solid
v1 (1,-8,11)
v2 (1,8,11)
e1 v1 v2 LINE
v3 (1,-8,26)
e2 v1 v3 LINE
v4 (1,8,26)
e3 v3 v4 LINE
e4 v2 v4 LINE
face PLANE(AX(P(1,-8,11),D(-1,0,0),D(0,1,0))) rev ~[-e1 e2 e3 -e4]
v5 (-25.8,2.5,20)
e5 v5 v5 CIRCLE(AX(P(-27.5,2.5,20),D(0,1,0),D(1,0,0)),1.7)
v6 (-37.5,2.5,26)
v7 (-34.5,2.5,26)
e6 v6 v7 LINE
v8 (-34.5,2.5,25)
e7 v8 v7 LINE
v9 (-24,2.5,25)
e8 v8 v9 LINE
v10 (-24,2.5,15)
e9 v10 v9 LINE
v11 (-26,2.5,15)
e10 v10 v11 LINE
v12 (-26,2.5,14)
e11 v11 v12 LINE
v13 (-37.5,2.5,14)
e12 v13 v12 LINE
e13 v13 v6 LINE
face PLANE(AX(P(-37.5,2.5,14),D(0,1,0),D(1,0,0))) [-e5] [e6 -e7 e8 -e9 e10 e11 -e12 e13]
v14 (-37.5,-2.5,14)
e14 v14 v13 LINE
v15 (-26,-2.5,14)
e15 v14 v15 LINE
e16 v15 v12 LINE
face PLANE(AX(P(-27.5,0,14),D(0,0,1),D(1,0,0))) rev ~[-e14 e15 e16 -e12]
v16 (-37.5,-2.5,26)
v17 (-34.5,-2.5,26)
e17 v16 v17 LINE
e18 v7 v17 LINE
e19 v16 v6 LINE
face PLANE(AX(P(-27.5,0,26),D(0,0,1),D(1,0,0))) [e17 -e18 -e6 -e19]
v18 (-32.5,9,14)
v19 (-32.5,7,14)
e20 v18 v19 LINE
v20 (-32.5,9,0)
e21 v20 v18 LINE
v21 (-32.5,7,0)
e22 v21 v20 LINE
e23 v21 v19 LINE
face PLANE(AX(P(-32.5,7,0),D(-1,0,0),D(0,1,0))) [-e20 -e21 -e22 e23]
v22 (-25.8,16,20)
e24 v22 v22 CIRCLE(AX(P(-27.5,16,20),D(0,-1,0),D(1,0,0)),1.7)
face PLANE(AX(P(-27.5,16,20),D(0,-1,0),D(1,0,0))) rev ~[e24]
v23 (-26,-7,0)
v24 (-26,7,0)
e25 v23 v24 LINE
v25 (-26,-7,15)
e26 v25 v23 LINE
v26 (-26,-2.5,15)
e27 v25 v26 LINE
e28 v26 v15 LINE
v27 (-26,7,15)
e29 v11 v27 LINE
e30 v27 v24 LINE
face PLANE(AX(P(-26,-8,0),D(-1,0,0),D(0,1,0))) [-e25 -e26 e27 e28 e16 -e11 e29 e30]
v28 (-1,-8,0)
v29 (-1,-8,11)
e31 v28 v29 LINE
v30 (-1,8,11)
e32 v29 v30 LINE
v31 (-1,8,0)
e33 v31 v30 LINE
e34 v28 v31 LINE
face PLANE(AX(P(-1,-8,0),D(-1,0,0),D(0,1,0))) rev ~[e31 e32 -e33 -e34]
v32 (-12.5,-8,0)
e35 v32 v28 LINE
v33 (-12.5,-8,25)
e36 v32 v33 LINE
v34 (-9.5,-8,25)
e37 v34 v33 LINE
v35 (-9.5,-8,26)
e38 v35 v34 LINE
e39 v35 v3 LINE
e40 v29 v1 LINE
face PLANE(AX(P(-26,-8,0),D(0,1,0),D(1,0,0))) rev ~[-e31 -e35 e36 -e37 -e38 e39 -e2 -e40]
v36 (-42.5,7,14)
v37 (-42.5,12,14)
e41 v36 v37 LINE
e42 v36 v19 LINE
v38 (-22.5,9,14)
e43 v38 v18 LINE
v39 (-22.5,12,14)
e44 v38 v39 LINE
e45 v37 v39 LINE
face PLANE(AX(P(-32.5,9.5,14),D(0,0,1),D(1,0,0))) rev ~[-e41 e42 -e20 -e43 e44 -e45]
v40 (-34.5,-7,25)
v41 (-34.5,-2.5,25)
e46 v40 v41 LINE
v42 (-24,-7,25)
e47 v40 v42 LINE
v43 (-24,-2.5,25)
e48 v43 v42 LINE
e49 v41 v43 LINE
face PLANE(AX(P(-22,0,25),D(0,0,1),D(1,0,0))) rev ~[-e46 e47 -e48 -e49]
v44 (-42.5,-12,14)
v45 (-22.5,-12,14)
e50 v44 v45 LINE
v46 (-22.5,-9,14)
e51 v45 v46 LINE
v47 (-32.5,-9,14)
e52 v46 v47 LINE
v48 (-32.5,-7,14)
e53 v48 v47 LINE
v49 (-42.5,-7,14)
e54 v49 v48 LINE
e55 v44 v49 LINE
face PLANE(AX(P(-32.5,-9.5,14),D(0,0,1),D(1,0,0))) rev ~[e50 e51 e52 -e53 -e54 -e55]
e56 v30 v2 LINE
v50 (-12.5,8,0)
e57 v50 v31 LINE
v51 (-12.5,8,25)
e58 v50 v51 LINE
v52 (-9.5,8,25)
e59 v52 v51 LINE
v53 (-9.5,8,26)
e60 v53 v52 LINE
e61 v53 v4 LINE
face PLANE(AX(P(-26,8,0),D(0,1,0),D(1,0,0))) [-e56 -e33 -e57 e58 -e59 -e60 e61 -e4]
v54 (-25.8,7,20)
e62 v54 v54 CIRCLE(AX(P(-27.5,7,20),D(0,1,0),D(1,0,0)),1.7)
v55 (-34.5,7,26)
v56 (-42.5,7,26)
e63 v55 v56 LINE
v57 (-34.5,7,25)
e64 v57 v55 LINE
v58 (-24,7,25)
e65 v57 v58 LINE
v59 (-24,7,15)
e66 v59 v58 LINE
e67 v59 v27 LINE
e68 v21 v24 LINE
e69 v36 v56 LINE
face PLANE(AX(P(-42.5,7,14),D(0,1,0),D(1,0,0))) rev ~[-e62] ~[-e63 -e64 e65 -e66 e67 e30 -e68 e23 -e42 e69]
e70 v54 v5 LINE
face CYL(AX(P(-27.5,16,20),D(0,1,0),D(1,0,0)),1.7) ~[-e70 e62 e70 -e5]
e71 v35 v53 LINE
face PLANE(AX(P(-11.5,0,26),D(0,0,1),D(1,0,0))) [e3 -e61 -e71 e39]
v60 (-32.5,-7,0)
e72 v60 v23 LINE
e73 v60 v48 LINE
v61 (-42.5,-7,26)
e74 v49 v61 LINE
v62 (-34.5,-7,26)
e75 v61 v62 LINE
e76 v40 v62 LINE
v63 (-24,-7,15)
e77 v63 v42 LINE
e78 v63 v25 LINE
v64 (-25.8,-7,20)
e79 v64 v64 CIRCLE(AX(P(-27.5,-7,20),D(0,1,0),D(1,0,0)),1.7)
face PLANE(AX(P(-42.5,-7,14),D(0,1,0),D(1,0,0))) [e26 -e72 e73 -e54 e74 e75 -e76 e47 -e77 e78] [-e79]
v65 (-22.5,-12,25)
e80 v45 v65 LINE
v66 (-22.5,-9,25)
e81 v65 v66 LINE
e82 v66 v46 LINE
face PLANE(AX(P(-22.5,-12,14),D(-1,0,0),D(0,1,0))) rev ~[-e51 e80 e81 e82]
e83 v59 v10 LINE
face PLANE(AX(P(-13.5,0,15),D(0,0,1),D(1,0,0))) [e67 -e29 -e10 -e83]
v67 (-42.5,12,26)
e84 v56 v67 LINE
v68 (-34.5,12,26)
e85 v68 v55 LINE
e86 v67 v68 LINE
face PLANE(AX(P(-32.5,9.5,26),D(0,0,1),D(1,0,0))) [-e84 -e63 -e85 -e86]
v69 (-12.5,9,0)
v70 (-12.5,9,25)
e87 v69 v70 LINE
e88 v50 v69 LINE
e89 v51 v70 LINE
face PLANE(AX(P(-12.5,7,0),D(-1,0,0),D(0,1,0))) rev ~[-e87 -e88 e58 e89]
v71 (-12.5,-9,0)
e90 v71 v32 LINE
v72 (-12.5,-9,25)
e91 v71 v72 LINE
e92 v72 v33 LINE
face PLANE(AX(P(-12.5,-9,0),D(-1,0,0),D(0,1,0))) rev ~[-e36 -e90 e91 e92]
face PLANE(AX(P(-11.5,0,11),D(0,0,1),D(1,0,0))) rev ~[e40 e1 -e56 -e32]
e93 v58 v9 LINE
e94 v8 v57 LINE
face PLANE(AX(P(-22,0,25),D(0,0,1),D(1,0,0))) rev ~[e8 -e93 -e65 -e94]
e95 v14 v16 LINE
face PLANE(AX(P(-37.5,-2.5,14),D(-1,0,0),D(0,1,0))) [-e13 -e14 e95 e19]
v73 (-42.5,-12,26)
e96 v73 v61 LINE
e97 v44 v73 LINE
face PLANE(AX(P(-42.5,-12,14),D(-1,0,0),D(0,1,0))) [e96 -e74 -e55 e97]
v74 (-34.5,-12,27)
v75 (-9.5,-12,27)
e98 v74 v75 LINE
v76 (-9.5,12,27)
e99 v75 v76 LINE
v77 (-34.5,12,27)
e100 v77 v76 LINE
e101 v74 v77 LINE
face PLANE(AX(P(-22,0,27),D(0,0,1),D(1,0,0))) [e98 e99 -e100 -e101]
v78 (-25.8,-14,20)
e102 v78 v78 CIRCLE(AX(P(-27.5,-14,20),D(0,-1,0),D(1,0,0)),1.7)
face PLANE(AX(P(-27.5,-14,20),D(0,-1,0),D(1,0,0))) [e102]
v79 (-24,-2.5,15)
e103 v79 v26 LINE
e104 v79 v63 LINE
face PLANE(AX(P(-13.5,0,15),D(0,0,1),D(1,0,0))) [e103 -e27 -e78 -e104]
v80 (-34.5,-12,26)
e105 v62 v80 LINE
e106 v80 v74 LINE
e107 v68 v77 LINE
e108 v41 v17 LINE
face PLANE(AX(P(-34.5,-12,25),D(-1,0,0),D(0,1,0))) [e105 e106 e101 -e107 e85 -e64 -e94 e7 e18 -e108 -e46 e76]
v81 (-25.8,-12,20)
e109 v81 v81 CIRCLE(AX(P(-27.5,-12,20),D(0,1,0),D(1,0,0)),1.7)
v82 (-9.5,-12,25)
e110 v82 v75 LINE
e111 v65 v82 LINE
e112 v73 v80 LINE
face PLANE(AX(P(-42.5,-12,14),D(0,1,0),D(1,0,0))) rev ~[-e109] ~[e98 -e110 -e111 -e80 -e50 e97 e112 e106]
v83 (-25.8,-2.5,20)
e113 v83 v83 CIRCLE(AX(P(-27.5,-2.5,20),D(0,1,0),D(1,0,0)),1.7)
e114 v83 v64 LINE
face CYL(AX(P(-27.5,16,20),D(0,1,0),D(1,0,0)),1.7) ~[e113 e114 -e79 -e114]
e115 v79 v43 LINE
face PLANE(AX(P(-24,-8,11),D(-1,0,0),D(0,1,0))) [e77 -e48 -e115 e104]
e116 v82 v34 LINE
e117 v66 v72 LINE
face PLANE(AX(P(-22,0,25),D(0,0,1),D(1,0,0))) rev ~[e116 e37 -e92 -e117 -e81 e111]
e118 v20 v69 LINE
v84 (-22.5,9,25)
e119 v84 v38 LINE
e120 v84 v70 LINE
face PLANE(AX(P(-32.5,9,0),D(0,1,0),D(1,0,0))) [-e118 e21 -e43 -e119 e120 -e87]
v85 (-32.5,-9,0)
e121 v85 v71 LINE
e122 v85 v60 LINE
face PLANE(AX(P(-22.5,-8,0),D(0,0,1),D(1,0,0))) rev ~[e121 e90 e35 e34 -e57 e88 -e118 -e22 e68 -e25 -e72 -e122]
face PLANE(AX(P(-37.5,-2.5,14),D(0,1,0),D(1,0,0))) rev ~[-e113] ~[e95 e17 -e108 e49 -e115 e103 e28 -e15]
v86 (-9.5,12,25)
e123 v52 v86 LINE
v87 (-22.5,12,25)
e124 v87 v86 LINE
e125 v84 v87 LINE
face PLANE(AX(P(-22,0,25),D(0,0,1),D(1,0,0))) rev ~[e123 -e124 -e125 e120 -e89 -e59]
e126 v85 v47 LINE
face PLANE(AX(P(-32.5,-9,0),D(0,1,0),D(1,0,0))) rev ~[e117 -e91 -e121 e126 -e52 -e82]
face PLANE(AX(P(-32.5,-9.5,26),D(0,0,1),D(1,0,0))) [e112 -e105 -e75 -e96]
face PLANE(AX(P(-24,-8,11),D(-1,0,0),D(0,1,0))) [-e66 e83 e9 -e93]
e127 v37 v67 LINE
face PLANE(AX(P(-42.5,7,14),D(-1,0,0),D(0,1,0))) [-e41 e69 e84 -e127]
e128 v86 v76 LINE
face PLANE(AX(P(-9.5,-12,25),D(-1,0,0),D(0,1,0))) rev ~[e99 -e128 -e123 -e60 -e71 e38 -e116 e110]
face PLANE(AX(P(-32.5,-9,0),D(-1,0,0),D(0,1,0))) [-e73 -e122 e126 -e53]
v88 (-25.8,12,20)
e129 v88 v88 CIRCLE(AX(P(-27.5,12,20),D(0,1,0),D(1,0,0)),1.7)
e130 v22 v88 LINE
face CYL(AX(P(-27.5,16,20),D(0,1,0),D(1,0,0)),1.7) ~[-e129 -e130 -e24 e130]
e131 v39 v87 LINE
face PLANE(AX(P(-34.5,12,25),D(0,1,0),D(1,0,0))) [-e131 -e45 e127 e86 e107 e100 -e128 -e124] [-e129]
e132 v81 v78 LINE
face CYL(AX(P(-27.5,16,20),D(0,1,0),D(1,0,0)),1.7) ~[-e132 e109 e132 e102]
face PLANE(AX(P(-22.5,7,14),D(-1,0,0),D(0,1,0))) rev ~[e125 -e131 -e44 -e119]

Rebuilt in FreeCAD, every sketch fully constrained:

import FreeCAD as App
import Part
import Sketcher

V = App.Vector


def add_polygon(sketch, points):
    """Adds a closed chain of lines whose ends are joined by coincident constraints."""
    first, n = sketch.GeometryCount, len(points)
    for a, b in zip(points, points[1:] + points[:1]):
        sketch.addGeometry(Part.LineSegment(App.Vector(*a, 0), App.Vector(*b, 0)), False)
    for i in range(n):
        sketch.addConstraint(Sketcher.Constraint("Coincident", first + i, 2, first + (i + 1) % n, 1))

doc = App.newDocument("Part")
body = doc.addObject("PartDesign::Body", "Body")

# Sketch on XY plane
sketch1 = body.newObject("Sketcher::SketchObject", "Sketch")
sketch1.AttachmentSupport = (doc.getObject("XY_Plane"), [""])
sketch1.MapMode = "FlatFace"
sketch1.AttachmentOffset = App.Placement(V(0, 0, 11), App.Rotation())
add_polygon(sketch1, [(-24, 8), (-24, -8), (1, -8), (1, 8)])  # lines 0-3
sketch1.addConstraint([
    Sketcher.Constraint("Vertical", 0),
    Sketcher.Constraint("Horizontal", 1),
    Sketcher.Constraint("Vertical", 2),
    Sketcher.Constraint("Horizontal", 3),
    Sketcher.Constraint("DistanceX", 1, 1, 1, 2, 25.0),
    Sketcher.Constraint("DistanceY", 0, 2, 0, 1, 16.0),
    Sketcher.Constraint("DistanceX", 0, 2, -1, 1, 24.0),
    Sketcher.Constraint("DistanceY", 0, 2, -1, 1, 8.0),
])
pad1 = body.newObject("PartDesign::Pad", "Pad")
pad1.Profile = sketch1
pad1.Length = 15
body2 = doc.addObject("PartDesign::Body", "Body001")

# Sketch on XY plane
sketch2 = body2.newObject("Sketcher::SketchObject", "Sketch001")
sketch2.AttachmentSupport = (doc.getObject("XY_Plane001"), [""])
sketch2.MapMode = "FlatFace"
sketch2.AttachmentOffset = App.Placement(V(0, 0, 25), App.Rotation())
add_polygon(sketch2, [(-34, 12), (-34, -12), (-10, -12), (-10, 12)])  # lines 0-3
sketch2.addConstraint([
    Sketcher.Constraint("Vertical", 0),
    Sketcher.Constraint("Horizontal", 1),
    Sketcher.Constraint("Vertical", 2),
    Sketcher.Constraint("Horizontal", 3),
    Sketcher.Constraint("DistanceX", 1, 1, 1, 2, 25.0),
    Sketcher.Constraint("DistanceY", 0, 2, 0, 1, 24.0),
    Sketcher.Constraint("DistanceY", 0, 2, -1, 1, 12.0),
    Sketcher.Constraint("DistanceX", 0, 2, -1, 1, 34.5),
])
pad2 = body2.newObject("PartDesign::Pad", "Pad001")
pad2.Profile = sketch2
pad2.Length = 2
body3 = doc.addObject("PartDesign::Body", "Body002")

# Sketch on XY plane
sketch3 = body3.newObject("Sketcher::SketchObject", "Sketch002")
sketch3.AttachmentSupport = (doc.getObject("XY_Plane002"), [""])
sketch3.MapMode = "FlatFace"
sketch3.AttachmentOffset = App.Placement(V(0, 0, 14), App.Rotation())
add_polygon(sketch3, [(-38, 2), (-38, -2), (-18, -2), (-18, 2)])  # lines 0-3
sketch3.addConstraint([
    Sketcher.Constraint("Vertical", 0),
    Sketcher.Constraint("Horizontal", 1),
    Sketcher.Constraint("Vertical", 2),
    Sketcher.Constraint("Horizontal", 3),
    Sketcher.Constraint("DistanceX", 1, 1, 1, 2, 20.0),
    Sketcher.Constraint("DistanceY", 0, 2, 0, 1, 5.0),
    Sketcher.Constraint("DistanceX", 0, 2, -1, 1, 37.5),
    Sketcher.Constraint("DistanceY", 0, 2, -1, 1, 2.5),
])
pad3 = body3.newObject("PartDesign::Pad", "Pad002")
pad3.Profile = sketch3
pad3.Length = 12
body4 = doc.addObject("PartDesign::Body", "Body003")

# Sketch on XY plane
sketch4 = body4.newObject("Sketcher::SketchObject", "Sketch003")
sketch4.AttachmentSupport = (doc.getObject("XY_Plane003"), [""])
sketch4.MapMode = "FlatFace"
sketch4.addGeometry(Part.Circle(V(0, 0, 0), V(0, 0, 1), 1.7), False)
sketch4.addConstraint([
    Sketcher.Constraint("Coincident", 0, 3, -1, 1),
    Sketcher.Constraint("Diameter", 0, 3.4),
])
pad4 = body4.newObject("PartDesign::Pad", "Pad003")
pad4.Profile = sketch4
pad4.Length = 30
body5 = doc.addObject("PartDesign::Body", "Body004")
doc.recompute()

body4.Placement = App.Placement(V(0, 0, 0), App.Rotation(V(1, 0, 0), 90))
boolean = body5.newObject("PartDesign::Boolean", "Boolean")
boolean.Type = "Fuse"
boolean.addObjects([body4])
body6 = doc.addObject("PartDesign::Body", "Body005")
doc.recompute()

body5.Placement = App.Placement(V(-27.5, 16, 20), App.Rotation(V(0, 0, 1), 0))
boolean2 = body6.newObject("PartDesign::Boolean", "Boolean001")
boolean2.Type = "Fuse"
boolean2.addObjects([body5])
doc.recompute()

boolean3 = body6.newObject("PartDesign::Boolean", "Boolean002")
boolean3.Type = "Fuse"
boolean3.addObjects([body3])
body7 = doc.addObject("PartDesign::Body", "Body006")

# Sketch on XY plane
sketch5 = body7.newObject("Sketcher::SketchObject", "Sketch004")
sketch5.AttachmentSupport = (doc.getObject("XY_Plane006"), [""])
sketch5.MapMode = "FlatFace"
add_polygon(sketch5, [(-32.5, 9), (-32.5, 7), (-12.5, 7), (-12.5, 9)])  # lines 0-3
sketch5.addConstraint([
    Sketcher.Constraint("Vertical", 0),
    Sketcher.Constraint("Horizontal", 1),
    Sketcher.Constraint("Vertical", 2),
    Sketcher.Constraint("Horizontal", 3),
    Sketcher.Constraint("DistanceX", 1, 1, 1, 2, 20.0),
    Sketcher.Constraint("DistanceY", 0, 2, 0, 1, 2.0),
    Sketcher.Constraint("DistanceY", -1, 1, 0, 2, 7.0),
    Sketcher.Constraint("DistanceX", 0, 2, -1, 1, 32.5),
])
pad5 = body7.newObject("PartDesign::Pad", "Pad004")
pad5.Profile = sketch5
pad5.Length = 26
doc.recompute()

boolean4 = body7.newObject("PartDesign::Boolean", "Boolean003")
boolean4.Type = "Fuse"
boolean4.addObjects([body6])
body8 = doc.addObject("PartDesign::Body", "Body007")

# Sketch on XY plane
sketch6 = body8.newObject("Sketcher::SketchObject", "Sketch005")
sketch6.AttachmentSupport = (doc.getObject("XY_Plane007"), [""])
sketch6.MapMode = "FlatFace"
add_polygon(sketch6, [(-32.5, -7), (-32.5, -9), (-12.5, -9), (-12.5, -7)])  # lines 0-3
sketch6.addConstraint([
    Sketcher.Constraint("Vertical", 0),
    Sketcher.Constraint("Horizontal", 1),
    Sketcher.Constraint("Vertical", 2),
    Sketcher.Constraint("Horizontal", 3),
    Sketcher.Constraint("DistanceX", 1, 1, 1, 2, 20.0),
    Sketcher.Constraint("DistanceY", 0, 2, 0, 1, 2.0),
    Sketcher.Constraint("DistanceY", 0, 2, -1, 1, 9.0),
    Sketcher.Constraint("DistanceX", 0, 2, -1, 1, 32.5),
])
pad6 = body8.newObject("PartDesign::Pad", "Pad005")
pad6.Profile = sketch6
pad6.Length = 26
doc.recompute()

boolean5 = body8.newObject("PartDesign::Boolean", "Boolean004")
boolean5.Type = "Fuse"
boolean5.addObjects([body7])
body9 = doc.addObject("PartDesign::Body", "Body008")

# Sketch on XY plane
sketch7 = body9.newObject("Sketcher::SketchObject", "Sketch006")
sketch7.AttachmentSupport = (doc.getObject("XY_Plane008"), [""])
sketch7.MapMode = "FlatFace"
sketch7.AttachmentOffset = App.Placement(V(0, 0, 14), App.Rotation())
add_polygon(sketch7, [(-42, 12), (-42, 7), (-22, 7), (-22, 12)])  # lines 0-3
sketch7.addConstraint([
    Sketcher.Constraint("Vertical", 0),
    Sketcher.Constraint("Horizontal", 1),
    Sketcher.Constraint("Vertical", 2),
    Sketcher.Constraint("Horizontal", 3),
    Sketcher.Constraint("DistanceX", 1, 1, 1, 2, 20.0),
    Sketcher.Constraint("DistanceY", 0, 2, 0, 1, 5.0),
    Sketcher.Constraint("DistanceY", -1, 1, 0, 2, 7.0),
    Sketcher.Constraint("DistanceX", 0, 2, -1, 1, 42.5),
])
pad7 = body9.newObject("PartDesign::Pad", "Pad006")
pad7.Profile = sketch7
pad7.Length = 12
doc.recompute()

boolean6 = body9.newObject("PartDesign::Boolean", "Boolean005")
boolean6.Type = "Fuse"
boolean6.addObjects([body8])
body10 = doc.addObject("PartDesign::Body", "Body009")

# Sketch on XY plane
sketch8 = body10.newObject("Sketcher::SketchObject", "Sketch007")
sketch8.AttachmentSupport = (doc.getObject("XY_Plane009"), [""])
sketch8.MapMode = "FlatFace"
sketch8.AttachmentOffset = App.Placement(V(0, 0, 14), App.Rotation())
add_polygon(sketch8, [(-42, -7), (-42, -12), (-22, -12), (-22, -7)])  # lines 0-3
sketch8.addConstraint([
    Sketcher.Constraint("Vertical", 0),
    Sketcher.Constraint("Horizontal", 1),
    Sketcher.Constraint("Vertical", 2),
    Sketcher.Constraint("Horizontal", 3),
    Sketcher.Constraint("DistanceX", 1, 1, 1, 2, 20.0),
    Sketcher.Constraint("DistanceY", 0, 2, 0, 1, 5.0),
    Sketcher.Constraint("DistanceY", 0, 2, -1, 1, 12.0),
    Sketcher.Constraint("DistanceX", 0, 2, -1, 1, 42.5),
])
pad8 = body10.newObject("PartDesign::Pad", "Pad007")
pad8.Profile = sketch8
pad8.Length = 12
doc.recompute()

boolean7 = body10.newObject("PartDesign::Boolean", "Boolean006")
boolean7.Type = "Fuse"
boolean7.addObjects([body9])
doc.recompute()

boolean8 = body10.newObject("PartDesign::Boolean", "Boolean007")
boolean8.Type = "Fuse"
boolean8.addObjects([body2])
body11 = doc.addObject("PartDesign::Body", "Body010")

# Sketch on XY plane
sketch9 = body11.newObject("Sketcher::SketchObject", "Sketch008")
sketch9.AttachmentSupport = (doc.getObject("XY_Plane010"), [""])
sketch9.MapMode = "FlatFace"
add_polygon(sketch9, [(-26, 8), (-26, -8), (-1, -8), (-1, 8)])  # lines 0-3
sketch9.addConstraint([
    Sketcher.Constraint("Vertical", 0),
    Sketcher.Constraint("Horizontal", 1),
    Sketcher.Constraint("Vertical", 2),
    Sketcher.Constraint("Horizontal", 3),
    Sketcher.Constraint("DistanceX", 1, 1, 1, 2, 25.0),
    Sketcher.Constraint("DistanceY", 0, 2, 0, 1, 16.0),
    Sketcher.Constraint("DistanceX", 0, 2, -1, 1, 26.0),
    Sketcher.Constraint("DistanceY", 0, 2, -1, 1, 8.0),
])
pad9 = body11.newObject("PartDesign::Pad", "Pad008")
pad9.Profile = sketch9
pad9.Length = 15
doc.recompute()

boolean9 = body11.newObject("PartDesign::Boolean", "Boolean008")
boolean9.Type = "Fuse"
boolean9.addObjects([body10])
doc.recompute()

boolean10 = body11.newObject("PartDesign::Boolean", "Boolean009")
boolean10.Type = "Fuse"
boolean10.addObjects([body])

doc.recompute()
